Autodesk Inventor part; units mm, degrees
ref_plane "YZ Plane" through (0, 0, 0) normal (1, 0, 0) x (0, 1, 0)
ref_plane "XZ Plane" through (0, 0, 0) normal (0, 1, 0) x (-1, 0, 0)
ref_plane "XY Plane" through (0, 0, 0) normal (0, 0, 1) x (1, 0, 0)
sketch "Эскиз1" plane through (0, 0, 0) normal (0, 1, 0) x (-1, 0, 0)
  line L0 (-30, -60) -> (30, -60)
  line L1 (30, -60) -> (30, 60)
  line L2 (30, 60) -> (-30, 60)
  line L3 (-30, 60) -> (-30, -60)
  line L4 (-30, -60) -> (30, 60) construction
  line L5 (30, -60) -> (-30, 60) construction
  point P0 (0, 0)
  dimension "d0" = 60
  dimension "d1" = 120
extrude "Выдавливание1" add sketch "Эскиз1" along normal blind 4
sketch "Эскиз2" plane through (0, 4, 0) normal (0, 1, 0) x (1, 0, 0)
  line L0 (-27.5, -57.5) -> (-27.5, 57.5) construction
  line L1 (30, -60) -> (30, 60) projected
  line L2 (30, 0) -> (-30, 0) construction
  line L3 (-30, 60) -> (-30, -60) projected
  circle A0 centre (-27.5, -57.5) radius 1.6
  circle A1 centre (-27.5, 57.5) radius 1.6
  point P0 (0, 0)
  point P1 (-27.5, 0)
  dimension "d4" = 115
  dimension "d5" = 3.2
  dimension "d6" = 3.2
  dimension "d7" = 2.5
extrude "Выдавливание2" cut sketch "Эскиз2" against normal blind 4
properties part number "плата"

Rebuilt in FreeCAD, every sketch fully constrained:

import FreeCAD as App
import Part
import Sketcher
from FreeCAD import Vector
Q = App.Units.Quantity


def add_polygon(sketch, points):
    """Adds a closed chain of lines whose ends are joined by coincident constraints."""
    first, n = sketch.GeometryCount, len(points)
    for a, b in zip(points, points[1:] + points[:1]):
        sketch.addGeometry(Part.LineSegment(App.Vector(*a, 0), App.Vector(*b, 0)), False)
    for i in range(n):
        sketch.addConstraint(Sketcher.Constraint("Coincident", first + i, 2, first + (i + 1) % n, 1))

doc = App.newDocument("Part")
body = doc.addObject("PartDesign::Body", "Body")

# Sketch on XZ plane
sketch1 = body.newObject("Sketcher::SketchObject", "Sketch")
sketch1.AttachmentSupport = (doc.getObject("XZ_Plane"), [""])
sketch1.MapMode = "FlatFace"
add_polygon(sketch1, [(30, 60), (30, -60), (-30, -60), (-30, 60)])  # lines 0-3
sketch1.addConstraint([
    Sketcher.Constraint("Vertical", 0),
    Sketcher.Constraint("Horizontal", 1),
    Sketcher.Constraint("Vertical", 2),
    Sketcher.Constraint("Horizontal", 3),
    Sketcher.Constraint("Symmetric", 0, 2, 2, 2, -1, 1),
    Sketcher.Constraint("DistanceX", 1, 2, 1, 1, Q("60 mm")),
    Sketcher.Constraint("DistanceY", 0, 2, 0, 1, Q("120 mm")),
])
pad1 = body.newObject("PartDesign::Pad", "Pad")
pad1.Profile = sketch1
pad1.Length = 4
pad1.Reversed = True

# Sketch on XZ plane
sketch2 = body.newObject("Sketcher::SketchObject", "Sketch001")
sketch2.AttachmentSupport = (doc.getObject("XZ_Plane"), [""])
sketch2.MapMode = "FlatFace"
sketch2.AttachmentOffset = App.Placement(Vector(0, 0, -4), App.Rotation())
sketch2.addGeometry([
    Part.Circle(Vector(-27.5, 57.5, 0), Vector(0, 0, 1), 1.6),
    Part.Circle(Vector(-27.5, -57.5, 0), Vector(0, 0, 1), 1.6),
], False)
sketch2.addConstraint([
    Sketcher.Constraint("Equal", 0, 1),
    Sketcher.Constraint("Symmetric", 0, 3, 1, 3, -1),
    Sketcher.Constraint("Diameter", 0, Q("3.2 mm")),
    Sketcher.Constraint("DistanceY", 1, 3, 0, 3, Q("115 mm")),
    Sketcher.Constraint("DistanceX", 0, 3, -1, 1, Q("27.5 mm")),
])
pocket1 = body.newObject("PartDesign::Pocket", "Pocket")
pocket1.Profile = sketch2
pocket1.Length = 4
pocket1.Reversed = True

doc.recompute()
